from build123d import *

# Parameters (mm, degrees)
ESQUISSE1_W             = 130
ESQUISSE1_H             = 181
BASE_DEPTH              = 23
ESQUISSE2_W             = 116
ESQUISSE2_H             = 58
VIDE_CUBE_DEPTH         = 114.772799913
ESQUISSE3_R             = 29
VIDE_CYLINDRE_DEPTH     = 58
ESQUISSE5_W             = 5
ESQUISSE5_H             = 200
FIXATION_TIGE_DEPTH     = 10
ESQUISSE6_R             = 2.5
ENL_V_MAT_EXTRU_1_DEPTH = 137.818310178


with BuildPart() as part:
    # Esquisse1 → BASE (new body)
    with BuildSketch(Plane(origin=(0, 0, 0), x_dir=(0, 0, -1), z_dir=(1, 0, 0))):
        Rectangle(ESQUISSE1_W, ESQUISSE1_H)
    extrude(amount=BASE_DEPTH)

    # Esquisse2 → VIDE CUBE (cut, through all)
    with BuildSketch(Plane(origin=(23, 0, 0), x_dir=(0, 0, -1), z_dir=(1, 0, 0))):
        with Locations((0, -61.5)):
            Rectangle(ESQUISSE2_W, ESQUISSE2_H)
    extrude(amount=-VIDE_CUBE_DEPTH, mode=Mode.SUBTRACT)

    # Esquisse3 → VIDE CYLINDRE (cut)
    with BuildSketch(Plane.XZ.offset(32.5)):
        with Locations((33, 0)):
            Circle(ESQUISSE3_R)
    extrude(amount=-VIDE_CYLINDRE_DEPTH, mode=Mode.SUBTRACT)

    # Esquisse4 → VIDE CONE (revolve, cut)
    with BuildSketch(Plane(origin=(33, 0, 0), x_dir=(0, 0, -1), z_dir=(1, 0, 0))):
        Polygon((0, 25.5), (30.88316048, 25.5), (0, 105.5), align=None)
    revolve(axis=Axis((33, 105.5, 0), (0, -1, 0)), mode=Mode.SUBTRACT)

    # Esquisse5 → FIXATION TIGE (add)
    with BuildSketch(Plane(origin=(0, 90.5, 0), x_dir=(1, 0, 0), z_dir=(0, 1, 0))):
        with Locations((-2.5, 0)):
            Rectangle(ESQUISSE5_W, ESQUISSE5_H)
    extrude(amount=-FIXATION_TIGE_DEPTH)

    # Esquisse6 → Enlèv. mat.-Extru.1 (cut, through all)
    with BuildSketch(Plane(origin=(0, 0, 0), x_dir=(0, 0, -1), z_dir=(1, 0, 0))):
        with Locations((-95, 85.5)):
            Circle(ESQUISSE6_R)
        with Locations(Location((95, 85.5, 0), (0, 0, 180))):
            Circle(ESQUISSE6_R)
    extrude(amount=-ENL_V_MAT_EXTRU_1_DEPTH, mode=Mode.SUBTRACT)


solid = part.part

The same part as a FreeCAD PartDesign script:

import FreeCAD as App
import Part
import Sketcher
from FreeCAD import Vector

doc = App.newDocument("Part")
body = doc.addObject("PartDesign::Body", "Body")

# Sketch on YZ plane
sketch1 = body.newObject("Sketcher::SketchObject", "Sketch")
sketch1.AttachmentSupport = (doc.getObject("YZ_Plane"), [""])
sketch1.MapMode = "FlatFace"
sketch1.addGeometry([
    Part.LineSegment(Vector(90, 65, 0), Vector(-90, 65, 0)),
    Part.LineSegment(Vector(-90, 65, 0), Vector(-90, -65, 0)),
    Part.LineSegment(Vector(-90, -65, 0), Vector(90, -65, 0)),
    Part.LineSegment(Vector(90, -65, 0), Vector(90, 65, 0)),
], False)
sketch1.addConstraint([
    Sketcher.Constraint("Coincident", 0, 2, 1, 1),
    Sketcher.Constraint("Coincident", 1, 2, 2, 1),
    Sketcher.Constraint("Coincident", 2, 2, 3, 1),
    Sketcher.Constraint("Coincident", 3, 2, 0, 1),
    Sketcher.Constraint("Horizontal", 0),
    Sketcher.Constraint("Vertical", 1),
    Sketcher.Constraint("Horizontal", 2),
    Sketcher.Constraint("Vertical", 3),
    Sketcher.Constraint("Symmetric", 0, 2, 2, 2, -1, 1),
    Sketcher.Constraint("DistanceX", 0, 2, 0, 1, 181.0),
    Sketcher.Constraint("DistanceY", 1, 2, 1, 1, 130.0),
])
pad1 = body.newObject("PartDesign::Pad", "Pad")
pad1.Profile = sketch1
pad1.Length = 23

# Sketch on YZ plane
sketch2 = body.newObject("Sketcher::SketchObject", "Sketch001")
sketch2.AttachmentSupport = (doc.getObject("YZ_Plane"), [""])
sketch2.MapMode = "FlatFace"
sketch2.AttachmentOffset = App.Placement(Vector(0, 0, 23), App.Rotation())
sketch2.addGeometry([
    Part.LineSegment(Vector(-32, 58, 0), Vector(-90, 58, 0)),
    Part.LineSegment(Vector(-90, 58, 0), Vector(-90, -58, 0)),
    Part.LineSegment(Vector(-90, -58, 0), Vector(-32, -58, 0)),
    Part.LineSegment(Vector(-32, -58, 0), Vector(-32, 58, 0)),
], False)
sketch2.addConstraint([
    Sketcher.Constraint("Coincident", 0, 2, 1, 1),
    Sketcher.Constraint("Coincident", 1, 2, 2, 1),
    Sketcher.Constraint("Coincident", 2, 2, 3, 1),
    Sketcher.Constraint("Coincident", 3, 2, 0, 1),
    Sketcher.Constraint("Horizontal", 0),
    Sketcher.Constraint("Vertical", 1),
    Sketcher.Constraint("Horizontal", 2),
    Sketcher.Constraint("Vertical", 3),
    Sketcher.Constraint("DistanceX", 0, 2, 0, 1, 58.0),
    Sketcher.Constraint("DistanceY", 1, 2, 1, 1, 116.0),
    Sketcher.Constraint("DistanceY", -1, 1, 0, 2, 58.0),
    Sketcher.Constraint("DistanceX", 0, 2, -1, 1, 90.5),
])
pocket1 = body.newObject("PartDesign::Pocket", "Pocket")
pocket1.Profile = sketch2
pocket1.Type = "ThroughAll"

# Sketch on XZ plane
sketch3 = body.newObject("Sketcher::SketchObject", "Sketch002")
sketch3.AttachmentSupport = (doc.getObject("XZ_Plane"), [""])
sketch3.MapMode = "FlatFace"
sketch3.AttachmentOffset = App.Placement(Vector(0, 0, 32.5), App.Rotation())
sketch3.addGeometry(Part.Circle(Vector(33, 0, 0), Vector(0, 0, 1), 29), False)
sketch3.addConstraint([
    Sketcher.Constraint("PointOnObject", 0, 3, -1),
    Sketcher.Constraint("Diameter", 0, 58.0),
    Sketcher.Constraint("DistanceX", -1, 1, 0, 3, 33.0),
])
pocket2 = body.newObject("PartDesign::Pocket", "Pocket001")
pocket2.Profile = sketch3
pocket2.Length = 58

# Sketch on YZ plane
sketch4 = body.newObject("Sketcher::SketchObject", "Sketch003")
sketch4.AttachmentSupport = (doc.getObject("YZ_Plane"), [""])
sketch4.MapMode = "FlatFace"
sketch4.AttachmentOffset = App.Placement(Vector(0, 0, 33), App.Rotation())
sketch4.addGeometry([
    Part.LineSegment(Vector(26, 0, 0), Vector(26, -31, 0)),
    Part.LineSegment(Vector(26, -31, 0), Vector(106, 0, 0)),
    Part.LineSegment(Vector(106, 0, 0), Vector(26, 0, 0)),
], False)
sketch4.addConstraint([
    Sketcher.Constraint("Coincident", 0, 2, 1, 1),
    Sketcher.Constraint("Coincident", 1, 2, 2, 1),
    Sketcher.Constraint("Coincident", 2, 2, 0, 1),
    Sketcher.Constraint("Vertical", 0),
    Sketcher.Constraint("Horizontal", 2),
    Sketcher.Constraint("PointOnObject", 1, 2, -1),
    Sketcher.Constraint("DistanceX", 2, 2, 2, 1, 80.0),
    Sketcher.Constraint("DistanceX", -1, 1, 0, 2, 25.5),
    Sketcher.Constraint("DistanceY", 0, 2, 0, 1, 30.88316),
])
groove = body.newObject("PartDesign::Groove", "Groove")
groove.Profile = sketch4
groove.ReferenceAxis = (sketch4, ["H_Axis"])
groove.Angle = 360

# Sketch on XZ plane
sketch5 = body.newObject("Sketcher::SketchObject", "Sketch004")
sketch5.AttachmentSupport = (doc.getObject("XZ_Plane"), [""])
sketch5.MapMode = "FlatFace"
sketch5.AttachmentOffset = App.Placement(Vector(0, 0, -90.5), App.Rotation())
sketch5.addGeometry([
    Part.LineSegment(Vector(-5, -100, 0), Vector(-5, 100, 0)),
    Part.LineSegment(Vector(-5, 100, 0), Vector(0, 100, 0)),
    Part.LineSegment(Vector(0, 100, 0), Vector(0, -100, 0)),
    Part.LineSegment(Vector(0, -100, 0), Vector(-5, -100, 0)),
], False)
sketch5.addConstraint([
    Sketcher.Constraint("Coincident", 0, 2, 1, 1),
    Sketcher.Constraint("Coincident", 1, 2, 2, 1),
    Sketcher.Constraint("Coincident", 2, 2, 3, 1),
    Sketcher.Constraint("Coincident", 3, 2, 0, 1),
    Sketcher.Constraint("Vertical", 0),
    Sketcher.Constraint("Horizontal", 1),
    Sketcher.Constraint("Vertical", 2),
    Sketcher.Constraint("Horizontal", 3),
    Sketcher.Constraint("Symmetric", 1, 2, 2, 2, -1, 1),
    Sketcher.Constraint("DistanceX", 1, 1, 1, 2, 5.0),
    Sketcher.Constraint("DistanceY", 0, 1, 0, 2, 200.0),
])
pad2 = body.newObject("PartDesign::Pad", "Pad001")
pad2.Profile = sketch5
pad2.Length = 10

# Sketch on YZ plane
sketch6 = body.newObject("Sketcher::SketchObject", "Sketch005")
sketch6.AttachmentSupport = (doc.getObject("YZ_Plane"), [""])
sketch6.MapMode = "FlatFace"
sketch6.addGeometry([
    Part.Circle(Vector(85.5, 95, 0), Vector(0, 0, 1), 2.5),
    Part.Circle(Vector(85.5, -95, 0), Vector(0, 0, 1), 2.5),
], False)
sketch6.addConstraint([
    Sketcher.Constraint("Equal", 0, 1),
    Sketcher.Constraint("Symmetric", 0, 3, 1, 3, -1),
    Sketcher.Constraint("Diameter", 0, 5.0),
    Sketcher.Constraint("DistanceY", -1, 1, 0, 3, 95.0),
    Sketcher.Constraint("DistanceX", -1, 1, 0, 3, 85.5),
])
pocket3 = body.newObject("PartDesign::Pocket", "Pocket002")
pocket3.Profile = sketch6
pocket3.Type = "ThroughAll"

doc.recompute()
